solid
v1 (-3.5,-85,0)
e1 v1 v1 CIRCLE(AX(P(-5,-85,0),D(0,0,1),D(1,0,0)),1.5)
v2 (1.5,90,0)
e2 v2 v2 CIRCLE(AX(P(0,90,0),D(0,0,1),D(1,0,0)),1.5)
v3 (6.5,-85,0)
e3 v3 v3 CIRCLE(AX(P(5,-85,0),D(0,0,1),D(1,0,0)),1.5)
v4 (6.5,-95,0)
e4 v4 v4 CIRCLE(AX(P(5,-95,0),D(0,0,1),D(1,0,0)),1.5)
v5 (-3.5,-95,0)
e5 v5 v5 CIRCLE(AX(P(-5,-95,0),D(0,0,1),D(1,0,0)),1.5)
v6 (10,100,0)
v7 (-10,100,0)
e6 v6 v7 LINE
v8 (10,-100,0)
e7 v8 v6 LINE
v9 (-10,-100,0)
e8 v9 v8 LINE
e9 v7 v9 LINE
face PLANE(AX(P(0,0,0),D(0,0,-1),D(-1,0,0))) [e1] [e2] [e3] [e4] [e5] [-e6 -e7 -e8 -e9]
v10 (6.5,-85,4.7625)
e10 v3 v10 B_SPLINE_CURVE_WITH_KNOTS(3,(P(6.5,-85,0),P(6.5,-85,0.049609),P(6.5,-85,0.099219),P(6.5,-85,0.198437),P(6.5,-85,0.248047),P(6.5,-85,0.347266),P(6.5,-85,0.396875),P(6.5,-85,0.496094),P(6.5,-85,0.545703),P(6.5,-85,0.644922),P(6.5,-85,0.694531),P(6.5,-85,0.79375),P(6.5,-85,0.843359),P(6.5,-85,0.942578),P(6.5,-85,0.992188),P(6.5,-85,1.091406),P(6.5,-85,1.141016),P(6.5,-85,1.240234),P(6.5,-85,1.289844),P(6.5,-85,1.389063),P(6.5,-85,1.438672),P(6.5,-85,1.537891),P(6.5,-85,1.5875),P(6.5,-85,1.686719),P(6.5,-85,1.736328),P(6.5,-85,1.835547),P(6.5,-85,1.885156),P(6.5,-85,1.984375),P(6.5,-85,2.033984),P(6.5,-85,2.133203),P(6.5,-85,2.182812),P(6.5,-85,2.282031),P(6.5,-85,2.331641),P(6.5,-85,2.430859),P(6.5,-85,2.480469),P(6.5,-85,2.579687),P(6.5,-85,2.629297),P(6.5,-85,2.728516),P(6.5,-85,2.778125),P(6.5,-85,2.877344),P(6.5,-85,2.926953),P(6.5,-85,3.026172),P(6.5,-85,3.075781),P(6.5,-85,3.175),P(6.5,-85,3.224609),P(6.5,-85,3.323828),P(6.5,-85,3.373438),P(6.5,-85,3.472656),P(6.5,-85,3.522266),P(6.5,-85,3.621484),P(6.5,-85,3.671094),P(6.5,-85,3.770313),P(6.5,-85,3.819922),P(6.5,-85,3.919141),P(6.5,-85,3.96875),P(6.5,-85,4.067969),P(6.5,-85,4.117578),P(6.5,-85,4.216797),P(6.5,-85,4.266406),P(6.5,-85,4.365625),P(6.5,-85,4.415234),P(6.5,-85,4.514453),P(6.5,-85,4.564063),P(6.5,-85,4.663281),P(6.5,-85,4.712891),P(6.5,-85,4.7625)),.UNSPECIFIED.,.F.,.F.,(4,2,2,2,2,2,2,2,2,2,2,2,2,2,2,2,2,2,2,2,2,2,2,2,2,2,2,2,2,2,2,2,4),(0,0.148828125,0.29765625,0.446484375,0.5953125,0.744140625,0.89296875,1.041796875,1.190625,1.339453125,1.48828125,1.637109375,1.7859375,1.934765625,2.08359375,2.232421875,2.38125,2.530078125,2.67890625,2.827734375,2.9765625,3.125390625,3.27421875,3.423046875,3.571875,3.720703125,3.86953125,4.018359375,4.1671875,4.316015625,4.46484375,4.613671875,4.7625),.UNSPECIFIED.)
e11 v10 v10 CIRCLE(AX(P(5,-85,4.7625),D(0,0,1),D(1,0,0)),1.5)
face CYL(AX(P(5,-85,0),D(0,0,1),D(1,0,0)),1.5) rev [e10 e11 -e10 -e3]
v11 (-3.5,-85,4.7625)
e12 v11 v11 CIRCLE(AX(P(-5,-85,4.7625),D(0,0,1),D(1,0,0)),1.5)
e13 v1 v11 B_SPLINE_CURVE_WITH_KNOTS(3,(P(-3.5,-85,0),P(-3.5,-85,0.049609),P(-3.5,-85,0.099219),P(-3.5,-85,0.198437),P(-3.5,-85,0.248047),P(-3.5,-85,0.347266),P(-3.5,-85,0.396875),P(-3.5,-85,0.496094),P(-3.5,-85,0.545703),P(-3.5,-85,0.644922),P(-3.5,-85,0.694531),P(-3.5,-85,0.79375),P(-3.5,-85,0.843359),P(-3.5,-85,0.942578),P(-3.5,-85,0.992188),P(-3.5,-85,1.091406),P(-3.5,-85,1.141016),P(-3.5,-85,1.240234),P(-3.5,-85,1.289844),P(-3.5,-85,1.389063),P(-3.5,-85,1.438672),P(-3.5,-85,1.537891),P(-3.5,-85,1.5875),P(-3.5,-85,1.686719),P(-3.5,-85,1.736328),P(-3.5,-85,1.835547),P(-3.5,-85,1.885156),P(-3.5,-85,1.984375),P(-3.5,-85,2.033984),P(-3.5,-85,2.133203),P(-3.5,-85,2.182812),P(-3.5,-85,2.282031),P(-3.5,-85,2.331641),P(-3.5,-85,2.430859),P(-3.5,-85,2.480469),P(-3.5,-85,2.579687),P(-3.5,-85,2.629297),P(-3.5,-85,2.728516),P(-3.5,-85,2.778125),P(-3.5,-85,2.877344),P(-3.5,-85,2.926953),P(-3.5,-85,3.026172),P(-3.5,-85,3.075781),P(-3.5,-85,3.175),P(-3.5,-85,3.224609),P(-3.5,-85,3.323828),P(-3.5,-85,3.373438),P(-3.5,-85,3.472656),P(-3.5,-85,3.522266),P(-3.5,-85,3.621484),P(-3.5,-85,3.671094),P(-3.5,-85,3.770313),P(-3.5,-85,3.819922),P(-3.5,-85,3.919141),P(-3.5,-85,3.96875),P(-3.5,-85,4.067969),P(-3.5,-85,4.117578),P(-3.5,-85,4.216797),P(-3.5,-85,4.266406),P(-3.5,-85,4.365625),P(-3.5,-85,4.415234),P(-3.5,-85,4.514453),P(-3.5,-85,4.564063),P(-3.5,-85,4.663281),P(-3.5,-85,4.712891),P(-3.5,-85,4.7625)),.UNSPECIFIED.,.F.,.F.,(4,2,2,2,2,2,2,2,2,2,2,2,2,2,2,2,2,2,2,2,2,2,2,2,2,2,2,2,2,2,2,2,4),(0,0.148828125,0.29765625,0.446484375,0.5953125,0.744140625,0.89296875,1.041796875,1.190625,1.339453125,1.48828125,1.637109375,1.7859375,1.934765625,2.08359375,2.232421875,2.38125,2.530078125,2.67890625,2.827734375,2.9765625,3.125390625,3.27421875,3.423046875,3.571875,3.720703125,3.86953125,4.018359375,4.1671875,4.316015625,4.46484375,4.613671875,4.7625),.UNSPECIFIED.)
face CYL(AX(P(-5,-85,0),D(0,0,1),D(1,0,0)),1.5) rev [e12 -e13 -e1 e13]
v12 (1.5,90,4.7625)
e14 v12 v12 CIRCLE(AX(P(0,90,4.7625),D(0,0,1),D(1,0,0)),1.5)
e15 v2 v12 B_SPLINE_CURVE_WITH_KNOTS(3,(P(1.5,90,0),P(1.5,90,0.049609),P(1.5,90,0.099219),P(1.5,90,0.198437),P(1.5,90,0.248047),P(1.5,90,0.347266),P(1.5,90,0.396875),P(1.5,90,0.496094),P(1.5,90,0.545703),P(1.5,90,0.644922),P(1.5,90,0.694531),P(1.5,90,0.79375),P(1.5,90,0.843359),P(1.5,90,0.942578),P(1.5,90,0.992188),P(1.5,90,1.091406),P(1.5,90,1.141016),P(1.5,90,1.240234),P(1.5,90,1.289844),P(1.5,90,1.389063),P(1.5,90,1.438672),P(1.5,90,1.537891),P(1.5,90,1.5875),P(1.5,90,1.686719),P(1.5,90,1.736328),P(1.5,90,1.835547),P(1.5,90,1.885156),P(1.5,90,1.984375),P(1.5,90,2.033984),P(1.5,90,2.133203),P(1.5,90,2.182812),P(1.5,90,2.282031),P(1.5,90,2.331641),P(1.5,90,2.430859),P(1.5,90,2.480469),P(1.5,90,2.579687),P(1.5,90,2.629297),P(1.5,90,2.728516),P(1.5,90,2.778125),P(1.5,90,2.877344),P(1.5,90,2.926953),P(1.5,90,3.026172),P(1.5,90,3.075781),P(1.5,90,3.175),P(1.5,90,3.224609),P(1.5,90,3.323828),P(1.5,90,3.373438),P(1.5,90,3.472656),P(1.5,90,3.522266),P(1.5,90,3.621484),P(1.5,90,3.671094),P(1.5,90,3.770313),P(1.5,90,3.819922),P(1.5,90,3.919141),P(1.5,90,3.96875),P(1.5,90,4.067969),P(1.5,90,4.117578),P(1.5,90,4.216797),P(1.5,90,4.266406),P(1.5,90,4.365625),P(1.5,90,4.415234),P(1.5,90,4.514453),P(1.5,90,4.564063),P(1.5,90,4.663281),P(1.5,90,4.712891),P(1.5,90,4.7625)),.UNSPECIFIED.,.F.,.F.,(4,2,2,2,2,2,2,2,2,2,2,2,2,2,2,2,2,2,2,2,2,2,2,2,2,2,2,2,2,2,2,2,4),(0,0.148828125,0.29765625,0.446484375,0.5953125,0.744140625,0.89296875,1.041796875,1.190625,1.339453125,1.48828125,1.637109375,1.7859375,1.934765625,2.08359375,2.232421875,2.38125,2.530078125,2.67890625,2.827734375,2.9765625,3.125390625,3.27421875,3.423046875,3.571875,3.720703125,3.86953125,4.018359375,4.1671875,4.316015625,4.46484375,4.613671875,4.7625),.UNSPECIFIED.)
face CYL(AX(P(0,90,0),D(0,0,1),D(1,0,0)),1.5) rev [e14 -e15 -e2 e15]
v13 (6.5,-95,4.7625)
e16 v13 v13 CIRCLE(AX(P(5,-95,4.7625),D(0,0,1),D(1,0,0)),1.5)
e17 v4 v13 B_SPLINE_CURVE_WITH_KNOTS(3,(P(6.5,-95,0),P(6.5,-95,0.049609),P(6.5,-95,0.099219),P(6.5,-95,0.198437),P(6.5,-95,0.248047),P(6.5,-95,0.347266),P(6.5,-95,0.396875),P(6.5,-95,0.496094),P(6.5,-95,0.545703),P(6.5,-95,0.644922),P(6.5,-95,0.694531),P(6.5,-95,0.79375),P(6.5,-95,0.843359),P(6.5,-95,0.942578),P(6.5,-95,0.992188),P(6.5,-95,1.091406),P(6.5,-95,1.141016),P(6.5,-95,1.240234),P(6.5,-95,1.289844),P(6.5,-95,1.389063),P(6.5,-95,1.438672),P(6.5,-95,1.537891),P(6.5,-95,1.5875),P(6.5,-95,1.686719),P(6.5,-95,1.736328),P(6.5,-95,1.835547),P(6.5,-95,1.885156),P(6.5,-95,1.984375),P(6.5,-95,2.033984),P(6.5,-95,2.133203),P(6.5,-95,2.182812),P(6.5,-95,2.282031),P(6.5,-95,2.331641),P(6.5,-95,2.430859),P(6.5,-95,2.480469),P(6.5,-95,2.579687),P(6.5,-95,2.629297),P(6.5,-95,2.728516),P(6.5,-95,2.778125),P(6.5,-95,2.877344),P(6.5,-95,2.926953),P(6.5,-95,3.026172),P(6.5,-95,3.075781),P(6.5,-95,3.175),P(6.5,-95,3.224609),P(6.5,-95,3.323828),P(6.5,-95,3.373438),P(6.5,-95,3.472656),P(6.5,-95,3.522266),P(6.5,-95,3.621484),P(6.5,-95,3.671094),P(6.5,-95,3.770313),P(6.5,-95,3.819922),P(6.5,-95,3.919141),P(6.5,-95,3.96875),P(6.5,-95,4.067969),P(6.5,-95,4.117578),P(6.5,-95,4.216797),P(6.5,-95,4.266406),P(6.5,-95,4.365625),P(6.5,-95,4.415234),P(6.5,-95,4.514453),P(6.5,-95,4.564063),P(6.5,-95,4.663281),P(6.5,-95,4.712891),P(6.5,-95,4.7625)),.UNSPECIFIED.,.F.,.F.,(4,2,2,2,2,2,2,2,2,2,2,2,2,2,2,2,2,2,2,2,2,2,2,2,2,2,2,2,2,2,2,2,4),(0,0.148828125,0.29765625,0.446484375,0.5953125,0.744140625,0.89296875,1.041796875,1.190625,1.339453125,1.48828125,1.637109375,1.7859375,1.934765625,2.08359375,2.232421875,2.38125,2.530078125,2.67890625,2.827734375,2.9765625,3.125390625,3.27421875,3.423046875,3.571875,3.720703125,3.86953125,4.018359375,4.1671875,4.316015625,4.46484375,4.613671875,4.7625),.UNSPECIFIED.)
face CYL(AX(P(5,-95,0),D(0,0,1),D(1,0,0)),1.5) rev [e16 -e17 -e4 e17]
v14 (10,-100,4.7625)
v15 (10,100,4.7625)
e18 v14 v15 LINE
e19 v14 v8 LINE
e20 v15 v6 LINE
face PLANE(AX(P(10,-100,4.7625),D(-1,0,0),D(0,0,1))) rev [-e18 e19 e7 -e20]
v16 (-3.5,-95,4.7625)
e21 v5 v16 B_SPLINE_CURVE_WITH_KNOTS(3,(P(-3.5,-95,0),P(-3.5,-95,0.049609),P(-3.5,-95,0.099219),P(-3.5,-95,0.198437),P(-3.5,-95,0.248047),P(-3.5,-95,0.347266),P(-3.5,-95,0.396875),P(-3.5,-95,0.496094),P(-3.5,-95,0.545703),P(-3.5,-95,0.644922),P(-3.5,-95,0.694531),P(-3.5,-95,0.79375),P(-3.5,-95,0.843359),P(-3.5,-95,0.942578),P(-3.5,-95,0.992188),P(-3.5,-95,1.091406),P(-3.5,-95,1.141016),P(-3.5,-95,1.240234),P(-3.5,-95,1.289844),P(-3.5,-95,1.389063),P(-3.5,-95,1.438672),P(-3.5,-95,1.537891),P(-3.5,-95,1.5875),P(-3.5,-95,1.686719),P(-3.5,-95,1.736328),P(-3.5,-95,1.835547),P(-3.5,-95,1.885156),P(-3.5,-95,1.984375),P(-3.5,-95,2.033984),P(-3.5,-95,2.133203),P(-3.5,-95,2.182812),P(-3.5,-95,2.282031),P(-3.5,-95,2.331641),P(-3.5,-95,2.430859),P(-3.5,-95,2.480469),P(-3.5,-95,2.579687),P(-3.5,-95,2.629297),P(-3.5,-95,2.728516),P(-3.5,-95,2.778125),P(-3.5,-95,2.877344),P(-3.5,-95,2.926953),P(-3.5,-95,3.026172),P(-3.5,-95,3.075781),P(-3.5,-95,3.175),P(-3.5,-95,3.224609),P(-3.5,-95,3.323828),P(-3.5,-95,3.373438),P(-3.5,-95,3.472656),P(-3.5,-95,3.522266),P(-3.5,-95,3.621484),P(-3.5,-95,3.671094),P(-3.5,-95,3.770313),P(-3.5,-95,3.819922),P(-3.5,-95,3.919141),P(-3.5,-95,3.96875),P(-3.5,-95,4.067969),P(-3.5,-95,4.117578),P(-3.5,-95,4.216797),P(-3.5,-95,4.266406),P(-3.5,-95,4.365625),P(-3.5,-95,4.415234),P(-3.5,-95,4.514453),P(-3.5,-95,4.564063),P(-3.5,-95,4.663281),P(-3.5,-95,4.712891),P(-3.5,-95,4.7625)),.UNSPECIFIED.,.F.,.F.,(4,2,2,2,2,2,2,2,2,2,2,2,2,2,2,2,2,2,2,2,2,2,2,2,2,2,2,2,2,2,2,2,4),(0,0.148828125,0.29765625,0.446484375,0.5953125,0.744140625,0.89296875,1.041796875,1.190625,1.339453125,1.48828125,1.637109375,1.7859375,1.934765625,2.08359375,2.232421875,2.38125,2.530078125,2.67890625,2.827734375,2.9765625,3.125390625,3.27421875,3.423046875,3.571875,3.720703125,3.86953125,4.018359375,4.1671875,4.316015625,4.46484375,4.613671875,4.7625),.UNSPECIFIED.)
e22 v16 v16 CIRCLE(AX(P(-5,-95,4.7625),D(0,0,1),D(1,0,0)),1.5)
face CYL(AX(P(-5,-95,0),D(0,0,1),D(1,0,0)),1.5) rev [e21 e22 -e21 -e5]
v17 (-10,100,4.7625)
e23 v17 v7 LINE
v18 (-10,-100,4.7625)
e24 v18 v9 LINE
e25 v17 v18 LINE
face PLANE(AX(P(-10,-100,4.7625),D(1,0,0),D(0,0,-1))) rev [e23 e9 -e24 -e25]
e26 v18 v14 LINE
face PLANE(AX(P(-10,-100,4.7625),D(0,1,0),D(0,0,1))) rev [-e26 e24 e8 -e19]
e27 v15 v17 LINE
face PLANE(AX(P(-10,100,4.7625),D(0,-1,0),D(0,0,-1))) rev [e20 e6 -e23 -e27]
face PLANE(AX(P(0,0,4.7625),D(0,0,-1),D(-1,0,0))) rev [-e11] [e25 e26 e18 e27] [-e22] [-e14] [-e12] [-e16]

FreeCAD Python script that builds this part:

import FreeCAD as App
import Part
import Sketcher

V = App.Vector


def add_polygon(sketch, points):
    """Adds a closed chain of lines whose ends are joined by coincident constraints."""
    first, n = sketch.GeometryCount, len(points)
    for a, b in zip(points, points[1:] + points[:1]):
        sketch.addGeometry(Part.LineSegment(App.Vector(*a, 0), App.Vector(*b, 0)), False)
    for i in range(n):
        sketch.addConstraint(Sketcher.Constraint("Coincident", first + i, 2, first + (i + 1) % n, 1))

doc = App.newDocument("Part")
body = doc.addObject("PartDesign::Body", "Body")

sketch1 = body.newObject("Sketcher::SketchObject", "Sketch")
sketch1.AttachmentSupport = (doc.getObject("XY_Plane"), [""])
sketch1.MapMode = "FlatFace"
add_polygon(sketch1, [(-10, 100), (-10, -100), (10, -100), (10, 100)])
sketch1.addConstraint([
    Sketcher.Constraint("Vertical", 0),
    Sketcher.Constraint("Horizontal", 1),
    Sketcher.Constraint("Vertical", 2),
    Sketcher.Constraint("Horizontal", 3),
    Sketcher.Constraint("Symmetric", 0, 2, 2, 2, -1, 1),
    Sketcher.Constraint("DistanceX", 1, 1, 1, 2, 20.0),
    Sketcher.Constraint("DistanceY", 0, 2, 0, 1, 200.0),
])
pad1 = body.newObject("PartDesign::Pad", "Pad")
pad1.Profile = sketch1
pad1.Length = 4.7625

sketch2 = body.newObject("Sketcher::SketchObject", "Sketch001")
sketch2.AttachmentSupport = (doc.getObject("XY_Plane"), [""])
sketch2.MapMode = "FlatFace"
sketch2.AttachmentOffset = App.Placement(V(0, 0, 4.7625), App.Rotation())
sketch2.addGeometry([
    Part.Circle(V(-5, -95, 0), V(0, 0, 1), 1.5),
    Part.Circle(V(5, -95, 0), V(0, 0, 1), 1.5),
    Part.Circle(V(-5, -85, 0), V(0, 0, 1), 1.5),
    Part.Circle(V(5, -85, 0), V(0, 0, 1), 1.5),
], False)
sketch2.addConstraint([
    Sketcher.Constraint("Equal", 0, 1),
    Sketcher.Constraint("Equal", 1, 2),
    Sketcher.Constraint("Equal", 2, 3),
    Sketcher.Constraint("Symmetric", 0, 3, 1, 3, -2),
    Sketcher.Constraint("Symmetric", 2, 3, 3, 3, -2),
    Sketcher.Constraint("Vertical", 0, 3, 2, 3),
    Sketcher.Constraint("Diameter", 0, 3.0),
    Sketcher.Constraint("DistanceX", 0, 3, -1, 1, 5.0),
    Sketcher.Constraint("DistanceY", 0, 3, -1, 1, 95.0),
    Sketcher.Constraint("DistanceY", 2, 3, -1, 1, 85.0),
])
pocket1 = body.newObject("PartDesign::Pocket", "Pocket")
pocket1.Profile = sketch2
pocket1.Type = "ThroughAll"

sketch3 = body.newObject("Sketcher::SketchObject", "Sketch002")
sketch3.AttachmentSupport = (doc.getObject("XY_Plane"), [""])
sketch3.MapMode = "FlatFace"
sketch3.AttachmentOffset = App.Placement(V(0, 0, 4.7625), App.Rotation())
sketch3.addGeometry(Part.Circle(V(0, 90, 0), V(0, 0, 1), 1.5), False)
sketch3.addConstraint([
    Sketcher.Constraint("PointOnObject", 0, 3, -2),
    Sketcher.Constraint("Diameter", 0, 3.0),
    Sketcher.Constraint("DistanceY", -1, 1, 0, 3, 90.0),
])
pocket2 = body.newObject("PartDesign::Pocket", "Pocket001")
pocket2.Profile = sketch3
pocket2.Type = "ThroughAll"

doc.recompute()
